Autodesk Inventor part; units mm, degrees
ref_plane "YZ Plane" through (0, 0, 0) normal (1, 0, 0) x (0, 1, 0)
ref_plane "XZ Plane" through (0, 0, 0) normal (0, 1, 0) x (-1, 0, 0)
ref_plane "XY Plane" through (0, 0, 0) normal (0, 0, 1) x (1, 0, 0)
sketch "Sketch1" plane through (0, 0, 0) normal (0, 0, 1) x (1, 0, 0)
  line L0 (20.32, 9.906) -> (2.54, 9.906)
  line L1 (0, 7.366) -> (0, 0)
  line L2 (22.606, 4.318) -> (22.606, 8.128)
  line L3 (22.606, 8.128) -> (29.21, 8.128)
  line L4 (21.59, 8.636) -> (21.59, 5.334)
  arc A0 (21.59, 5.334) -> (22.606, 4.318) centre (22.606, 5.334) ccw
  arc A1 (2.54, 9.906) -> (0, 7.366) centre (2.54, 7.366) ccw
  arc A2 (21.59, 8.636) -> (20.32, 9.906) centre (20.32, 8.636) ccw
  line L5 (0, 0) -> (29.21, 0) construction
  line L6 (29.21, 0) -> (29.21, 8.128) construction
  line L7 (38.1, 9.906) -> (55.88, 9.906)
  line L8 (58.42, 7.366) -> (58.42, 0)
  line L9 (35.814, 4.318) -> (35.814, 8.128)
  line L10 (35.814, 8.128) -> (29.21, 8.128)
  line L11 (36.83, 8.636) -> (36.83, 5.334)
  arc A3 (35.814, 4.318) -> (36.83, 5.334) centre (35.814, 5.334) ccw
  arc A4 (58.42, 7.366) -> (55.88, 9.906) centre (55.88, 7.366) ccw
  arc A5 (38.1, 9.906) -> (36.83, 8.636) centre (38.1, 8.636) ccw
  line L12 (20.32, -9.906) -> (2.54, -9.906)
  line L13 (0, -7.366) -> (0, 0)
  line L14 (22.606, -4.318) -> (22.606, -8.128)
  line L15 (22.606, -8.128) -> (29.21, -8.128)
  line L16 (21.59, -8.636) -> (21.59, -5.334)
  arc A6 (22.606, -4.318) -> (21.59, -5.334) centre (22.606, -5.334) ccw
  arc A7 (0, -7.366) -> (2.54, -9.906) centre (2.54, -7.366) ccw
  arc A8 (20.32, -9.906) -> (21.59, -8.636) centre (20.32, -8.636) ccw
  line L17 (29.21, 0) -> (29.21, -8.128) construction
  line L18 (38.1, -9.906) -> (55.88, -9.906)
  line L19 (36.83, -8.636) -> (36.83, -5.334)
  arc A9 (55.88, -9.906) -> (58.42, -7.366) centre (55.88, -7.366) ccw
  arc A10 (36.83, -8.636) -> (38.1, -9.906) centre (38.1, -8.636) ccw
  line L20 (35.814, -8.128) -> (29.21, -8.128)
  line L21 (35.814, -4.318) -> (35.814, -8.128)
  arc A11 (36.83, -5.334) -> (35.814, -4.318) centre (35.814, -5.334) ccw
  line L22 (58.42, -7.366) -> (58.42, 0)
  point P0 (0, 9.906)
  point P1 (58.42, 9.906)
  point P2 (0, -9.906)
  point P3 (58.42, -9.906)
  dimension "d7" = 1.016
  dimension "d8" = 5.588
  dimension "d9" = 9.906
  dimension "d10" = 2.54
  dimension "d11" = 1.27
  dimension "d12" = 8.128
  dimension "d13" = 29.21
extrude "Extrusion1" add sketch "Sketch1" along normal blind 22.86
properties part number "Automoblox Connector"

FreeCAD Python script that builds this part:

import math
import FreeCAD as App
import Part
import Sketcher
from FreeCAD import Vector
Q = App.Units.Quantity

doc = App.newDocument("Part")
params = doc.addObject("Spreadsheet::Sheet", "Params")
for row, (alias, value) in enumerate([
    ("sketch1_radius", "0.1 in"),
    ("sketch1_radius2", "0.05 in"),
    ("sketch1_radius3", "0.04 in"),
    ("sketch1_width", "0.7 in"),
    ("sketch1_width2", "0.52 in"),
    ("pad1_length", "0.9 in"),
], start=1):
    params.set(f"A{row}", alias)
    params.set(f"B{row}", "=" + value)
    params.setAlias(f"B{row}", alias)

body = doc.addObject("PartDesign::Body", "Body")

# Sketch on XY plane
sketch1 = doc.addObject("Sketcher::SketchObject", "Sketch")
body.addObject(sketch1)
sketch1.AttachmentSupport = (doc.XY_Plane, [""])
sketch1.MapMode = "FlatFace"
sketch1.addGeometry([
    Part.ArcOfCircle(Part.Circle(Vector(20.3, 8.6, 0), Vector(0, 0, 1), 1.3), math.radians(0), math.radians(90)),  # 0
    Part.LineSegment(Vector(20.3, 9.9, 0), Vector(2.5, 9.9, 0)),  # 1
    Part.ArcOfCircle(Part.Circle(Vector(2.5, 7.4, 0), Vector(0, 0, 1), 2.5), math.radians(90), math.radians(180)),  # 2
    Part.LineSegment(Vector(0, 7.4, 0), Vector(0, -7.4, 0)),  # 3
    Part.ArcOfCircle(Part.Circle(Vector(2.5, -7.4, 0), Vector(0, 0, 1), 2.5), math.radians(180), math.radians(270)),  # 4
    Part.LineSegment(Vector(2.5, -9.9, 0), Vector(20.3, -9.9, 0)),  # 5
    Part.ArcOfCircle(Part.Circle(Vector(20.3, -8.6, 0), Vector(0, 0, 1), 1.3), math.radians(-90), math.radians(0)),  # 6
    Part.LineSegment(Vector(21.6, -8.6, 0), Vector(21.6, -5.3, 0)),  # 7
    Part.ArcOfCircle(Part.Circle(Vector(22.6, -5.3, 0), Vector(0, 0, 1), 1), math.radians(90), math.radians(180)),  # 8
    Part.LineSegment(Vector(22.6, -4.3, 0), Vector(22.6, -8.1, 0)),  # 9
    Part.LineSegment(Vector(22.6, -8.1, 0), Vector(35.8, -8.1, 0)),  # 10
    Part.LineSegment(Vector(35.8, -8.1, 0), Vector(35.8, -4.3, 0)),  # 11
    Part.ArcOfCircle(Part.Circle(Vector(35.8, -5.3, 0), Vector(0, 0, 1), 1), math.radians(0), math.radians(90)),  # 12
    Part.LineSegment(Vector(36.8, -5.3, 0), Vector(36.8, -8.6, 0)),  # 13
    Part.ArcOfCircle(Part.Circle(Vector(38.1, -8.6, 0), Vector(0, 0, 1), 1.3), math.radians(180), math.radians(270)),  # 14
    Part.LineSegment(Vector(38.1, -9.9, 0), Vector(55.9, -9.9, 0)),  # 15
    Part.ArcOfCircle(Part.Circle(Vector(55.9, -7.4, 0), Vector(0, 0, 1), 2.5), math.radians(-90), math.radians(0)),  # 16
    Part.LineSegment(Vector(58.4, -7.4, 0), Vector(58.4, 7.4, 0)),  # 17
    Part.ArcOfCircle(Part.Circle(Vector(55.9, 7.4, 0), Vector(0, 0, 1), 2.5), math.radians(0), math.radians(90)),  # 18
    Part.LineSegment(Vector(55.9, 9.9, 0), Vector(38.1, 9.9, 0)),  # 19
    Part.ArcOfCircle(Part.Circle(Vector(38.1, 8.6, 0), Vector(0, 0, 1), 1.3), math.radians(90), math.radians(180)),  # 20
    Part.LineSegment(Vector(36.8, 8.6, 0), Vector(36.8, 5.3, 0)),  # 21
    Part.ArcOfCircle(Part.Circle(Vector(35.8, 5.3, 0), Vector(0, 0, 1), 1), math.radians(-90), math.radians(0)),  # 22
    Part.LineSegment(Vector(35.8, 4.3, 0), Vector(35.8, 8.1, 0)),  # 23
    Part.LineSegment(Vector(35.8, 8.1, 0), Vector(22.6, 8.1, 0)),  # 24
    Part.LineSegment(Vector(22.6, 8.1, 0), Vector(22.6, 4.3, 0)),  # 25
    Part.ArcOfCircle(Part.Circle(Vector(22.6, 5.3, 0), Vector(0, 0, 1), 1), math.radians(180), math.radians(270)),  # 26
    Part.LineSegment(Vector(21.6, 5.3, 0), Vector(21.6, 8.6, 0)),  # 27
], False)
sketch1.addConstraint([
    Sketcher.Constraint("Tangent", 0, 2, 1, 1),
    Sketcher.Constraint("Tangent", 1, 2, 2, 1),
    Sketcher.Constraint("Tangent", 2, 2, 3, 1),
    Sketcher.Constraint("Tangent", 3, 2, 4, 1),
    Sketcher.Constraint("Tangent", 4, 2, 5, 1),
    Sketcher.Constraint("Tangent", 5, 2, 6, 1),
    Sketcher.Constraint("Tangent", 6, 2, 7, 1),
    Sketcher.Constraint("Tangent", 7, 2, 8, 2),
    Sketcher.Constraint("Coincident", 8, 1, 9, 1),
    Sketcher.Constraint("Coincident", 9, 2, 10, 1),
    Sketcher.Constraint("Coincident", 10, 2, 11, 1),
    Sketcher.Constraint("Coincident", 11, 2, 12, 2),
    Sketcher.Constraint("Tangent", 12, 1, 13, 1),
    Sketcher.Constraint("Tangent", 13, 2, 14, 1),
    Sketcher.Constraint("Tangent", 14, 2, 15, 1),
    Sketcher.Constraint("Tangent", 15, 2, 16, 1),
    Sketcher.Constraint("Tangent", 16, 2, 17, 1),
    Sketcher.Constraint("Tangent", 17, 2, 18, 1),
    Sketcher.Constraint("Tangent", 18, 2, 19, 1),
    Sketcher.Constraint("Tangent", 19, 2, 20, 1),
    Sketcher.Constraint("Tangent", 20, 2, 21, 1),
    Sketcher.Constraint("Tangent", 21, 2, 22, 2),
    Sketcher.Constraint("Coincident", 22, 1, 23, 1),
    Sketcher.Constraint("Coincident", 23, 2, 24, 1),
    Sketcher.Constraint("Coincident", 24, 2, 25, 1),
    Sketcher.Constraint("Coincident", 25, 2, 26, 2),
    Sketcher.Constraint("Tangent", 26, 1, 27, 1),
    Sketcher.Constraint("Tangent", 27, 2, 0, 1),
    Sketcher.Constraint("Horizontal", 1),
    Sketcher.Constraint("Vertical", 3),
    Sketcher.Constraint("Horizontal", 5),
    Sketcher.Constraint("Vertical", 7),
    Sketcher.Constraint("Vertical", 9),
    Sketcher.Constraint("Horizontal", 10),
    Sketcher.Constraint("Vertical", 11),
    Sketcher.Constraint("Vertical", 13),
    Sketcher.Constraint("Horizontal", 15),
    Sketcher.Constraint("Vertical", 17),
    Sketcher.Constraint("Horizontal", 19),
    Sketcher.Constraint("Vertical", 21),
    Sketcher.Constraint("Vertical", 23),
    Sketcher.Constraint("Horizontal", 24),
    Sketcher.Constraint("Vertical", 25),
    Sketcher.Constraint("Vertical", 27),
    Sketcher.Constraint("Equal", 2, 4),
    Sketcher.Constraint("Equal", 0, 6),
    Sketcher.Constraint("Equal", 8, 12),
    Sketcher.Constraint("Equal", 6, 14),
    Sketcher.Constraint("Equal", 4, 16),
    Sketcher.Constraint("Equal", 16, 18),
    Sketcher.Constraint("Equal", 14, 20),
    Sketcher.Constraint("Equal", 12, 22),
    Sketcher.Constraint("Equal", 22, 26),
    Sketcher.Constraint("Symmetric", 2, 2, 3, 2, -1, 1),
    Sketcher.Constraint("Symmetric", 14, 3, 20, 3, -1),
    Sketcher.Constraint("Symmetric", 8, 3, 26, 3, -1),
    Sketcher.Constraint("Symmetric", 11, 2, 22, 1, -1),
    Sketcher.Constraint("Symmetric", 9, 2, 24, 2, -1),
    Sketcher.Constraint("Horizontal", 8, 3, 12, 3),
    Sketcher.Constraint("Horizontal", 6, 3, 14, 3),
    Sketcher.Constraint("Vertical", 26, 3, 8, 1),
    Sketcher.Constraint("Vertical", 22, 3, 10, 2),
    Sketcher.Constraint("Equal", 5, 15),
    Sketcher.Constraint("Radius", 2, Q("0.1 in")),
    Sketcher.Constraint("Radius", 0, Q("0.05 in")),
    Sketcher.Constraint("Radius", 8, Q("0.04 in")),
    Sketcher.Constraint("DistanceY", -1, 1, 0, 2, Q("0.39 in")),
    Sketcher.Constraint("DistanceY", 9, 2, -1, 1, Q("0.32 in")),
    Sketcher.Constraint("DistanceY", 5, 2, 8, 1, Q("0.22 in")),
    Sketcher.Constraint("DistanceX", 1, 2, 1, 1, Q("0.7 in")),
    Sketcher.Constraint("DistanceX", 10, 1, 10, 2, Q("0.52 in")),
])
sketch1.setExpression("Constraints[63]", "Params.sketch1_radius")
sketch1.setExpression("Constraints[64]", "Params.sketch1_radius2")
sketch1.setExpression("Constraints[65]", "Params.sketch1_radius3")
sketch1.setExpression("Constraints[69]", "Params.sketch1_width")
sketch1.setExpression("Constraints[70]", "Params.sketch1_width2")
pad1 = doc.addObject("PartDesign::Pad", "Pad")
body.addObject(pad1)
pad1.Profile = sketch1
pad1.setExpression("Length", "Params.pad1_length")

doc.recompute()
